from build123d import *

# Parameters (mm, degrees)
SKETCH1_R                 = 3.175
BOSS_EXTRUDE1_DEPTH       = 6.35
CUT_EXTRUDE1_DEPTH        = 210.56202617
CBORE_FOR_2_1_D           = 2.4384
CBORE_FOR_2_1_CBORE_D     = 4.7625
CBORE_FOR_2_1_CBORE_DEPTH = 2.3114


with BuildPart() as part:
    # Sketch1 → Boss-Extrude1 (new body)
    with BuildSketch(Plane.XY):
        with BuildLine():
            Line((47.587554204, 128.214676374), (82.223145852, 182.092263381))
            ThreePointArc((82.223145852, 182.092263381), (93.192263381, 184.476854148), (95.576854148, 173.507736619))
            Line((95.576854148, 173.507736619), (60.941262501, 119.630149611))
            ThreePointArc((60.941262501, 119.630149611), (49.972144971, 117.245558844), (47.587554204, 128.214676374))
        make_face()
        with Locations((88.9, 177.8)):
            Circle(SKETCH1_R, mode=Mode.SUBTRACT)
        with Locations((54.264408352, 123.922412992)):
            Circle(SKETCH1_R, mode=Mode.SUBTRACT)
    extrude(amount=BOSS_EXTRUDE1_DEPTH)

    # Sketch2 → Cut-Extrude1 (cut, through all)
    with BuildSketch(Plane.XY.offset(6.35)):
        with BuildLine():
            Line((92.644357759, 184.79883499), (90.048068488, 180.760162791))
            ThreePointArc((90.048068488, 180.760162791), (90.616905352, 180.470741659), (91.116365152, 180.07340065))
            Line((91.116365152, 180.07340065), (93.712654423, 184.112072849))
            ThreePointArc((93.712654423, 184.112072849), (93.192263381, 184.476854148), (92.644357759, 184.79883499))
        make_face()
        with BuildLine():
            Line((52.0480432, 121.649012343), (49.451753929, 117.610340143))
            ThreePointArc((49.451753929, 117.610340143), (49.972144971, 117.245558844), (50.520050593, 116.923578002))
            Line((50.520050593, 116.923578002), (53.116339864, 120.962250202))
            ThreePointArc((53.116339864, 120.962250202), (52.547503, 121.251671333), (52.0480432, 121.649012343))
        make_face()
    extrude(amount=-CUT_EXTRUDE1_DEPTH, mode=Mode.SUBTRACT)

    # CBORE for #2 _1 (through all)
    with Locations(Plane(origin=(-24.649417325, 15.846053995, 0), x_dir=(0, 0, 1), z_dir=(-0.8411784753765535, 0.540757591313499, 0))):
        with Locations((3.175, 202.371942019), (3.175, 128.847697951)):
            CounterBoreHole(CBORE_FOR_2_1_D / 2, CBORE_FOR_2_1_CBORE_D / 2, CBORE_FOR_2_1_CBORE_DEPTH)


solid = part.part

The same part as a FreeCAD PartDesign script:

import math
import FreeCAD as App
import Part
import Sketcher

V = App.Vector
Q = App.Units.Quantity

doc = App.newDocument("Part")
body = doc.addObject("PartDesign::Body", "Body")

sketch1 = body.newObject("Sketcher::SketchObject", "Sketch")
sketch1.AttachmentSupport = (doc.getObject("XY_Plane"), [""])
sketch1.MapMode = "FlatFace"
sketch1.addGeometry([
    Part.LineSegment(V(82.223146, 182.092263, 0), V(47.587554, 128.214676, 0)),
    Part.ArcOfCircle(Part.Circle(V(54.264408, 123.922413, 0), V(0, 0, 1), 7.9375), math.radians(147.264774), math.radians(327.264774)),
    Part.LineSegment(V(60.941263, 119.63015, 0), V(95.576854, 173.507737, 0)),
    Part.ArcOfCircle(Part.Circle(V(88.9, 177.8, 0), V(0, 0, 1), 7.9375), math.radians(-32.735226), math.radians(147.264774)),
    Part.Circle(V(54.264408, 123.922413, 0), V(0, 0, 1), 3.175),
    Part.Circle(V(88.9, 177.8, 0), V(0, 0, 1), 3.175),
], False)
sketch1.addConstraint([
    Sketcher.Constraint("Tangent", 0, 2, 1, 1),
    Sketcher.Constraint("Tangent", 1, 2, 2, 1),
    Sketcher.Constraint("Tangent", 2, 2, 3, 1),
    Sketcher.Constraint("Tangent", 3, 2, 0, 1),
    Sketcher.Constraint("Coincident", 4, 3, 1, 3),
    Sketcher.Constraint("Coincident", 5, 3, 3, 3),
    Sketcher.Constraint("Equal", 1, 3),
    Sketcher.Constraint("Equal", 4, 5),
    Sketcher.Constraint("Diameter", 4, Q("0.25 in")),
    Sketcher.Constraint("DistanceY", -1, 1, 3, 3, Q("7 in")),
    Sketcher.Constraint("Radius", 1, Q("0.3125 in")),
    Sketcher.Constraint("DistanceX", -1, 1, 3, 3, Q("3.5 in")),
    Sketcher.Constraint("DistanceX", -1, 1, 1, 3, Q("54.264408 mm")),
    Sketcher.Constraint("DistanceY", -1, 1, 1, 2, Q("119.63015 mm")),
])
pad1 = body.newObject("PartDesign::Pad", "Pad")
pad1.Profile = sketch1
pad1.Length = Q("0.25 in")

sketch2 = body.newObject("Sketcher::SketchObject", "Sketch001")
sketch2.AttachmentSupport = (doc.getObject("XY_Plane"), [""])
sketch2.MapMode = "FlatFace"
sketch2.AttachmentOffset = App.Placement(V(0, 0, 0.25 * 25.4), App.Rotation())
sketch2.addGeometry([
    Part.LineSegment(V(92.644358, 184.798835, 0), V(90.048068, 180.760163, 0)),
    Part.ArcOfCircle(Part.Circle(V(88.9, 177.8, 0), V(0, 0, 1), 3.175), math.radians(45.727815), math.radians(68.801733)),
    Part.LineSegment(V(91.116365, 180.073401, 0), V(93.712654, 184.112073, 0)),
    Part.ArcOfCircle(Part.Circle(V(88.9, 177.8, 0), V(0, 0, 1), 7.9375), math.radians(52.676208), math.radians(61.853339)),
    Part.LineSegment(V(52.048043, 121.649012, 0), V(49.451754, 117.61034, 0)),
    Part.ArcOfCircle(Part.Circle(V(54.264408, 123.922413, 0), V(0, 0, 1), 7.9375), math.radians(-127.323792), math.radians(-118.146661)),
    Part.LineSegment(V(50.520051, 116.923578, 0), V(53.11634, 120.96225, 0)),
    Part.ArcOfCircle(Part.Circle(V(54.264408, 123.922413, 0), V(0, 0, 1), 3.175), math.radians(-134.272185), math.radians(-111.198267)),
], False)
sketch2.addConstraint([
    Sketcher.Constraint("Coincident", 0, 2, 1, 2),
    Sketcher.Constraint("Coincident", 1, 1, 2, 1),
    Sketcher.Constraint("Coincident", 2, 2, 3, 1),
    Sketcher.Constraint("Coincident", 3, 2, 0, 1),
    Sketcher.Constraint("Coincident", 4, 2, 5, 1),
    Sketcher.Constraint("Coincident", 5, 2, 6, 1),
    Sketcher.Constraint("Coincident", 6, 2, 7, 2),
    Sketcher.Constraint("Coincident", 7, 1, 4, 1),
    Sketcher.Constraint("Coincident", 3, 3, 1, 3),
    Sketcher.Constraint("Coincident", 7, 3, 5, 3),
    Sketcher.Constraint("Equal", 3, 5),
    Sketcher.Constraint("Equal", 1, 7),
    Sketcher.Constraint("Parallel", 0, 2),
    Sketcher.Constraint("Parallel", 2, 4),
    Sketcher.Constraint("Parallel", 4, 6),
    Sketcher.Constraint("Equal", 0, 2),
    Sketcher.Constraint("Equal", 2, 4),
    Sketcher.Constraint("Equal", 4, 6),
    Sketcher.Constraint("DistanceY", -1, 1, 1, 3, Q("7 in")),
    Sketcher.Constraint("Radius", 1, Q("0.125 in")),
    Sketcher.Constraint("Radius", 3, Q("0.3125 in")),
    Sketcher.Constraint("DistanceX", -1, 1, 1, 3, Q("3.5 in")),
    Sketcher.Constraint("DistanceY", -1, 1, 1, 1, Q("180.073401 mm")),
    Sketcher.Constraint("DistanceX", -1, 1, 5, 3, Q("54.264408 mm")),
    Sketcher.Constraint("DistanceX", -1, 1, 0, 2, Q("90.048068 mm")),
    Sketcher.Constraint("DistanceY", -1, 1, 4, 2, Q("117.61034 mm")),
])
pocket1 = body.newObject("PartDesign::Pocket", "Pocket")
pocket1.Profile = sketch2
pocket1.Type = "ThroughAll"

sketch3 = body.newObject("Sketcher::SketchObject", "Sketch002")
sketch3.Placement = App.Placement(V(-24.649417, 15.846054, 0), App.Rotation(V(0, 0, 1), V(0.540757591, 0.841178475, 0), V(-0.841178475, 0.540757591, 0), "ZXY"))
sketch3.addGeometry([
    Part.Circle(V(3.175, 202.371942, 0), V(0, 0, 1), 1.2192),
    Part.Circle(V(3.175, 128.847698, 0), V(0, 0, 1), 1.2192),
], False)
sketch3.addConstraint([
    Sketcher.Constraint("Equal", 0, 1),
    Sketcher.Constraint("Vertical", 0, 3, 1, 3),
    Sketcher.Constraint("Diameter", 0, Q("0.096 in")),
    Sketcher.Constraint("DistanceX", -1, 1, 0, 3, Q("0.125 in")),
    Sketcher.Constraint("DistanceY", -1, 1, 0, 3, Q("202.371942 mm")),
    Sketcher.Constraint("DistanceY", -1, 1, 1, 3, Q("128.847698 mm")),
])
doc.recompute()
hole = body.newObject("PartDesign::Hole", "Hole")
hole.Profile = sketch3
hole.ThreadType = "None"
hole.Diameter = Q("0.096 in")
hole.DepthType = "ThroughAll"
hole.HoleCutType = "Counterbore"
hole.HoleCutDiameter = Q("0.1875 in")
hole.HoleCutDepth = Q("0.091 in")

doc.recompute()
